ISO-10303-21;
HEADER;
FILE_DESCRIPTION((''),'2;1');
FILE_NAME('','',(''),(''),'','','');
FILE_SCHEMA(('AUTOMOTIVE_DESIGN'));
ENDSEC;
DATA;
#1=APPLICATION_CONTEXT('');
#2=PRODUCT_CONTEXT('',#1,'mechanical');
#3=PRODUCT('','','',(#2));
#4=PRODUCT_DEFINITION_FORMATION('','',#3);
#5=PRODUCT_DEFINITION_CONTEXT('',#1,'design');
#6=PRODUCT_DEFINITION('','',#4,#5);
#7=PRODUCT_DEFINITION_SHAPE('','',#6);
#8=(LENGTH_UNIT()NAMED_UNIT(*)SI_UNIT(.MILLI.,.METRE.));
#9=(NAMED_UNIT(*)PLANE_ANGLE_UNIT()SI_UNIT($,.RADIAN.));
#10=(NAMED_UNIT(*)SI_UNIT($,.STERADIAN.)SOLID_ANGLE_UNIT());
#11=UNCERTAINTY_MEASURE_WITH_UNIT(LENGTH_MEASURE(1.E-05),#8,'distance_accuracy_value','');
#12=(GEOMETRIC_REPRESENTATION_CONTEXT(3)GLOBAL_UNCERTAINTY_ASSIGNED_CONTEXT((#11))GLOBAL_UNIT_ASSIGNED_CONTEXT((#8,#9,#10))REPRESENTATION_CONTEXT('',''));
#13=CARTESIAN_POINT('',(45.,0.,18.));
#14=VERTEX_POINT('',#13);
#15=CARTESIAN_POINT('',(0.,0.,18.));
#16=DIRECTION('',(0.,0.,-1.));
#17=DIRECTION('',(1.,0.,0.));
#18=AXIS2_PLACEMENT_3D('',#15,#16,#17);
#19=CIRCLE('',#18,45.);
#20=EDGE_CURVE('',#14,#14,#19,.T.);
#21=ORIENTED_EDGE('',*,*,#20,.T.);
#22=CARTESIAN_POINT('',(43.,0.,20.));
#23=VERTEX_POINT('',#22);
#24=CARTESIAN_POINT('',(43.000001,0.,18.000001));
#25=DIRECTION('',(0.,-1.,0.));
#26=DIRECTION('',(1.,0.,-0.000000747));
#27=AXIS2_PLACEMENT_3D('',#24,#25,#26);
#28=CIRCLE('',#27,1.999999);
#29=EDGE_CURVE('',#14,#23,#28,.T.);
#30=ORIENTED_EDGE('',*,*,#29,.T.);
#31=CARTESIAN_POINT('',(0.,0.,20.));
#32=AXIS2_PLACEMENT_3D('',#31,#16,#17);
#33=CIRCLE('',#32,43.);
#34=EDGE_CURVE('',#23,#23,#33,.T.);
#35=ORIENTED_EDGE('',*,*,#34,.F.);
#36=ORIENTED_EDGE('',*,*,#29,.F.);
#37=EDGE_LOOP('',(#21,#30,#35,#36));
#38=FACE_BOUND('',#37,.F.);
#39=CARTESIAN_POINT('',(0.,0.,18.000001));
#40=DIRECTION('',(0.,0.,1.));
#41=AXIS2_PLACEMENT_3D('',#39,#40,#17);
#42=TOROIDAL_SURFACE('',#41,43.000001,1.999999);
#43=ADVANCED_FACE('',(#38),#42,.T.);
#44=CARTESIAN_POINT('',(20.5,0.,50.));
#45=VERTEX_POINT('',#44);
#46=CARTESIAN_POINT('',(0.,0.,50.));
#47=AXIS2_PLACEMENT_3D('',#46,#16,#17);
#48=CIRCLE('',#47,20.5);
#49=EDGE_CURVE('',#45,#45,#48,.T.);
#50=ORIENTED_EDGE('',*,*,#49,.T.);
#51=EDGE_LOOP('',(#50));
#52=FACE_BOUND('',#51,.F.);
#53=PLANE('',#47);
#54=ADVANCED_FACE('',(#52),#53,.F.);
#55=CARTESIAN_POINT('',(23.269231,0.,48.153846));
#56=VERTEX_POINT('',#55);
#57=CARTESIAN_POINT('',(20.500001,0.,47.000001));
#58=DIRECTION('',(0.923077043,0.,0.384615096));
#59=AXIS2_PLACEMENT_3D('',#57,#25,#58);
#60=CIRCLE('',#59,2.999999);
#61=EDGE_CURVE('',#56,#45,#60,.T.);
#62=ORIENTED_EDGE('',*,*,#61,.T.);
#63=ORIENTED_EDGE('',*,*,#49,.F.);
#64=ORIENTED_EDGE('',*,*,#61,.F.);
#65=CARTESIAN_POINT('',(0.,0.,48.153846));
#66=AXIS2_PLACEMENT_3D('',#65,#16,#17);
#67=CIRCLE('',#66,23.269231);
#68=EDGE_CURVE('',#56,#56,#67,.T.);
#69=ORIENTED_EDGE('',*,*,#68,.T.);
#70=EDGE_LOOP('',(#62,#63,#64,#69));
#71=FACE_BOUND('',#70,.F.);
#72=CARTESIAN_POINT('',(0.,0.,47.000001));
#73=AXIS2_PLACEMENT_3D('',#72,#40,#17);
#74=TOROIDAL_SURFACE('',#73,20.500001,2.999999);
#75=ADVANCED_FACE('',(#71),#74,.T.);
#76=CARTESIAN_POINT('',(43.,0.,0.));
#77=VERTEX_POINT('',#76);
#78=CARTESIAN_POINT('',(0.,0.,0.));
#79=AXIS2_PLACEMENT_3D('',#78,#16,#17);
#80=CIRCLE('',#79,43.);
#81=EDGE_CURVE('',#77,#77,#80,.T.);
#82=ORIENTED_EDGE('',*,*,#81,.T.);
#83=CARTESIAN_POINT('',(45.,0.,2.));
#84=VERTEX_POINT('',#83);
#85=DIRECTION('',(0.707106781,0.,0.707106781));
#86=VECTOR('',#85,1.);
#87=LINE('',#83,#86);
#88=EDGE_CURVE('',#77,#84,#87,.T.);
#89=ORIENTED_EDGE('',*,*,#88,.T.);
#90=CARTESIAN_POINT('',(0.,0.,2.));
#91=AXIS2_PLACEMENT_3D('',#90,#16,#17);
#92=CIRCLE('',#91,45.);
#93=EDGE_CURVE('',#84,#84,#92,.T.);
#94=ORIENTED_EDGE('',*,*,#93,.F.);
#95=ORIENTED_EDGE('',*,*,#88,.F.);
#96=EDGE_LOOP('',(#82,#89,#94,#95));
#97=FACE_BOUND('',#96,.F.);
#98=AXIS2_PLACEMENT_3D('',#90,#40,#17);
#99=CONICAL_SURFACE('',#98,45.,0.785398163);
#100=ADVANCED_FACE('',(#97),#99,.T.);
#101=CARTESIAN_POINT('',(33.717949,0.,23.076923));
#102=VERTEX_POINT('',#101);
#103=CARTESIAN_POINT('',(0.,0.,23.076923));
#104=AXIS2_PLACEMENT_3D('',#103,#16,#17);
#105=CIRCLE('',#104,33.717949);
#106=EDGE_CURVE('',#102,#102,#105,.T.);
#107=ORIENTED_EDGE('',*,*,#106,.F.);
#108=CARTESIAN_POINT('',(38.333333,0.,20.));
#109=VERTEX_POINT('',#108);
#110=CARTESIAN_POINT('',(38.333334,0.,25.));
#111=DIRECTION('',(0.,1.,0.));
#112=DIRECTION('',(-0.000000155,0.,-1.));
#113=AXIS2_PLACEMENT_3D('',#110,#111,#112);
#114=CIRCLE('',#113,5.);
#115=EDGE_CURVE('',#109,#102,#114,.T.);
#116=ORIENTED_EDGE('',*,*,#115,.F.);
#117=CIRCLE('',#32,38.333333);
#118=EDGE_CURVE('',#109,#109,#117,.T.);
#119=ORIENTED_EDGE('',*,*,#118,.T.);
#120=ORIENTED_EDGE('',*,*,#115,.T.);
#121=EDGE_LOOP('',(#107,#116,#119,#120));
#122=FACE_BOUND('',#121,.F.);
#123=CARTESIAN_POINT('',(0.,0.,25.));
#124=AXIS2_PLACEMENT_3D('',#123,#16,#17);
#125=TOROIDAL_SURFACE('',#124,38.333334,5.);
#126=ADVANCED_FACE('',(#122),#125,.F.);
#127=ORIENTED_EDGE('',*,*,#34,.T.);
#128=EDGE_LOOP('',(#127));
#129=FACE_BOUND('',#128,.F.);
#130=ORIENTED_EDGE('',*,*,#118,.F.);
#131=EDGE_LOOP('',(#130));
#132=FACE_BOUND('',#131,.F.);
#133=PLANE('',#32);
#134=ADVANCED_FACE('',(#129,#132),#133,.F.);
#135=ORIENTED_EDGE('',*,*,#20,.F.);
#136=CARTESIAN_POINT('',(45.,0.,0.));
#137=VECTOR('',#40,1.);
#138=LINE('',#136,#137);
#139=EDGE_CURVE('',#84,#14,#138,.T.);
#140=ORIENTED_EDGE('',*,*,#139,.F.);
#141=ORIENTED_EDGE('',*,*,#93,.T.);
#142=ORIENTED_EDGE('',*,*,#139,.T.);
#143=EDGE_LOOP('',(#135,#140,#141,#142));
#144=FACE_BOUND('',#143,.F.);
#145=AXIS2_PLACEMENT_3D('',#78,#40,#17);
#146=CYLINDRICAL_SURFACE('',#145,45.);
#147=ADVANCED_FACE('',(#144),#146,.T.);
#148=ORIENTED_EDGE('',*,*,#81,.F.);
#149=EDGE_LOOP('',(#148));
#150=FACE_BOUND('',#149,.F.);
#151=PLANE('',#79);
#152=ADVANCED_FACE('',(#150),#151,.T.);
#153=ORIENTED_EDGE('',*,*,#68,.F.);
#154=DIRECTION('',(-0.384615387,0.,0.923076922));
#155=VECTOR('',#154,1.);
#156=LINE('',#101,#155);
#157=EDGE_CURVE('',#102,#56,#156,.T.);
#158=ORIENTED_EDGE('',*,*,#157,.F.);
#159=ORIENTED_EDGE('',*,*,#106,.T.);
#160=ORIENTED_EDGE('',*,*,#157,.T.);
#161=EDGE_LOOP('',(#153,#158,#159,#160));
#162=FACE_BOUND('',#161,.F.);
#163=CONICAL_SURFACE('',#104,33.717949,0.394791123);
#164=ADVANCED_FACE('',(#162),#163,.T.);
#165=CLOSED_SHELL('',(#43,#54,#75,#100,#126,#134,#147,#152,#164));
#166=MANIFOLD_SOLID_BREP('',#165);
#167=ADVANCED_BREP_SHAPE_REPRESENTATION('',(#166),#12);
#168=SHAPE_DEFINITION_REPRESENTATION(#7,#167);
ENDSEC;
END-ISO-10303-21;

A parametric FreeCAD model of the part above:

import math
import FreeCAD as App
import Part
import Sketcher

V = App.Vector
Q = App.Units.Quantity


def edges_at(feature, points):
    """Names of the edges that pass closest to the given points."""
    edges = feature.Shape.Edges
    near = lambda p: min(range(len(edges)), key=lambda i: edges[i].distToShape(Part.Vertex(*p))[0])
    return sorted({f"Edge{near(p) + 1}" for p in points})

doc = App.newDocument("Part")
body = doc.addObject("PartDesign::Body", "Body")

sketch1 = body.newObject("Sketcher::SketchObject", "Sketch")
sketch1.AttachmentSupport = (doc.getObject("XZ_Plane"), [""])
sketch1.MapMode = "FlatFace"
sketch1.addGeometry([
    Part.LineSegment(V(20.5, 50, 0), V(0, 50, 0)),
    Part.LineSegment(V(0, 50, 0), V(0, 0, 0)),
    Part.LineSegment(V(0, 0, 0), V(45, 0, 0)),
    Part.LineSegment(V(45, 0, 0), V(45, 18, 0)),
    Part.ArcOfCircle(Part.Circle(V(43, 18, 0), V(0, 0, 1), 2), math.radians(0), math.radians(90)),
    Part.LineSegment(V(43, 20, 0), V(38.3, 20, 0)),
    Part.ArcOfCircle(Part.Circle(V(38.3, 25, 0), V(0, 0, 1), 5), math.radians(-157), math.radians(-90)),
    Part.LineSegment(V(33.7, 23.1, 0), V(23.3, 48.2, 0)),
    Part.ArcOfCircle(Part.Circle(V(20.5, 47, 0), V(0, 0, 1), 3), math.radians(23), math.radians(90)),
], False)
sketch1.addConstraint([
    Sketcher.Constraint("Coincident", 0, 2, 1, 1),
    Sketcher.Constraint("Coincident", 1, 2, 2, 1),
    Sketcher.Constraint("Coincident", 2, 2, 3, 1),
    Sketcher.Constraint("Tangent", 3, 2, 4, 1),
    Sketcher.Constraint("Tangent", 4, 2, 5, 1),
    Sketcher.Constraint("Tangent", 5, 2, 6, 2),
    Sketcher.Constraint("Tangent", 6, 1, 7, 1),
    Sketcher.Constraint("Tangent", 7, 2, 8, 1),
    Sketcher.Constraint("Tangent", 8, 2, 0, 1),
    Sketcher.Constraint("Horizontal", 0),
    Sketcher.Constraint("Vertical", 1),
    Sketcher.Constraint("Horizontal", 2),
    Sketcher.Constraint("Vertical", 3),
    Sketcher.Constraint("Horizontal", 5),
    Sketcher.Constraint("Coincident", 1, 2, -1, 1),
    Sketcher.Constraint("Radius", 4, Q("1.999999 mm")),
    Sketcher.Constraint("Radius", 6, Q("5 mm")),
    Sketcher.Constraint("Radius", 8, Q("2.999999 mm")),
    Sketcher.Constraint("DistanceX", 2, 1, 2, 2, Q("45 mm")),
    Sketcher.Constraint("DistanceY", 1, 2, 1, 1, Q("50 mm")),
    Sketcher.Constraint("DistanceY", 3, 1, 3, 2, Q("18 mm")),
    Sketcher.Constraint("DistanceX", 0, 2, 0, 1, Q("20.5 mm")),
    Sketcher.Constraint("DistanceX", 5, 2, 5, 1, Q("4.666667 mm")),
])
revolution = body.newObject("PartDesign::Revolution", "Revolution")
revolution.Profile = sketch1
revolution.ReferenceAxis = (sketch1, ["V_Axis"])
revolution.Angle = 360
doc.recompute()

chamfer = body.newObject("PartDesign::Chamfer", "Chamfer")
chamfer.Base = (revolution, edges_at(revolution, [(-45, 0, 0)]))
chamfer.Size = 2

doc.recompute()
